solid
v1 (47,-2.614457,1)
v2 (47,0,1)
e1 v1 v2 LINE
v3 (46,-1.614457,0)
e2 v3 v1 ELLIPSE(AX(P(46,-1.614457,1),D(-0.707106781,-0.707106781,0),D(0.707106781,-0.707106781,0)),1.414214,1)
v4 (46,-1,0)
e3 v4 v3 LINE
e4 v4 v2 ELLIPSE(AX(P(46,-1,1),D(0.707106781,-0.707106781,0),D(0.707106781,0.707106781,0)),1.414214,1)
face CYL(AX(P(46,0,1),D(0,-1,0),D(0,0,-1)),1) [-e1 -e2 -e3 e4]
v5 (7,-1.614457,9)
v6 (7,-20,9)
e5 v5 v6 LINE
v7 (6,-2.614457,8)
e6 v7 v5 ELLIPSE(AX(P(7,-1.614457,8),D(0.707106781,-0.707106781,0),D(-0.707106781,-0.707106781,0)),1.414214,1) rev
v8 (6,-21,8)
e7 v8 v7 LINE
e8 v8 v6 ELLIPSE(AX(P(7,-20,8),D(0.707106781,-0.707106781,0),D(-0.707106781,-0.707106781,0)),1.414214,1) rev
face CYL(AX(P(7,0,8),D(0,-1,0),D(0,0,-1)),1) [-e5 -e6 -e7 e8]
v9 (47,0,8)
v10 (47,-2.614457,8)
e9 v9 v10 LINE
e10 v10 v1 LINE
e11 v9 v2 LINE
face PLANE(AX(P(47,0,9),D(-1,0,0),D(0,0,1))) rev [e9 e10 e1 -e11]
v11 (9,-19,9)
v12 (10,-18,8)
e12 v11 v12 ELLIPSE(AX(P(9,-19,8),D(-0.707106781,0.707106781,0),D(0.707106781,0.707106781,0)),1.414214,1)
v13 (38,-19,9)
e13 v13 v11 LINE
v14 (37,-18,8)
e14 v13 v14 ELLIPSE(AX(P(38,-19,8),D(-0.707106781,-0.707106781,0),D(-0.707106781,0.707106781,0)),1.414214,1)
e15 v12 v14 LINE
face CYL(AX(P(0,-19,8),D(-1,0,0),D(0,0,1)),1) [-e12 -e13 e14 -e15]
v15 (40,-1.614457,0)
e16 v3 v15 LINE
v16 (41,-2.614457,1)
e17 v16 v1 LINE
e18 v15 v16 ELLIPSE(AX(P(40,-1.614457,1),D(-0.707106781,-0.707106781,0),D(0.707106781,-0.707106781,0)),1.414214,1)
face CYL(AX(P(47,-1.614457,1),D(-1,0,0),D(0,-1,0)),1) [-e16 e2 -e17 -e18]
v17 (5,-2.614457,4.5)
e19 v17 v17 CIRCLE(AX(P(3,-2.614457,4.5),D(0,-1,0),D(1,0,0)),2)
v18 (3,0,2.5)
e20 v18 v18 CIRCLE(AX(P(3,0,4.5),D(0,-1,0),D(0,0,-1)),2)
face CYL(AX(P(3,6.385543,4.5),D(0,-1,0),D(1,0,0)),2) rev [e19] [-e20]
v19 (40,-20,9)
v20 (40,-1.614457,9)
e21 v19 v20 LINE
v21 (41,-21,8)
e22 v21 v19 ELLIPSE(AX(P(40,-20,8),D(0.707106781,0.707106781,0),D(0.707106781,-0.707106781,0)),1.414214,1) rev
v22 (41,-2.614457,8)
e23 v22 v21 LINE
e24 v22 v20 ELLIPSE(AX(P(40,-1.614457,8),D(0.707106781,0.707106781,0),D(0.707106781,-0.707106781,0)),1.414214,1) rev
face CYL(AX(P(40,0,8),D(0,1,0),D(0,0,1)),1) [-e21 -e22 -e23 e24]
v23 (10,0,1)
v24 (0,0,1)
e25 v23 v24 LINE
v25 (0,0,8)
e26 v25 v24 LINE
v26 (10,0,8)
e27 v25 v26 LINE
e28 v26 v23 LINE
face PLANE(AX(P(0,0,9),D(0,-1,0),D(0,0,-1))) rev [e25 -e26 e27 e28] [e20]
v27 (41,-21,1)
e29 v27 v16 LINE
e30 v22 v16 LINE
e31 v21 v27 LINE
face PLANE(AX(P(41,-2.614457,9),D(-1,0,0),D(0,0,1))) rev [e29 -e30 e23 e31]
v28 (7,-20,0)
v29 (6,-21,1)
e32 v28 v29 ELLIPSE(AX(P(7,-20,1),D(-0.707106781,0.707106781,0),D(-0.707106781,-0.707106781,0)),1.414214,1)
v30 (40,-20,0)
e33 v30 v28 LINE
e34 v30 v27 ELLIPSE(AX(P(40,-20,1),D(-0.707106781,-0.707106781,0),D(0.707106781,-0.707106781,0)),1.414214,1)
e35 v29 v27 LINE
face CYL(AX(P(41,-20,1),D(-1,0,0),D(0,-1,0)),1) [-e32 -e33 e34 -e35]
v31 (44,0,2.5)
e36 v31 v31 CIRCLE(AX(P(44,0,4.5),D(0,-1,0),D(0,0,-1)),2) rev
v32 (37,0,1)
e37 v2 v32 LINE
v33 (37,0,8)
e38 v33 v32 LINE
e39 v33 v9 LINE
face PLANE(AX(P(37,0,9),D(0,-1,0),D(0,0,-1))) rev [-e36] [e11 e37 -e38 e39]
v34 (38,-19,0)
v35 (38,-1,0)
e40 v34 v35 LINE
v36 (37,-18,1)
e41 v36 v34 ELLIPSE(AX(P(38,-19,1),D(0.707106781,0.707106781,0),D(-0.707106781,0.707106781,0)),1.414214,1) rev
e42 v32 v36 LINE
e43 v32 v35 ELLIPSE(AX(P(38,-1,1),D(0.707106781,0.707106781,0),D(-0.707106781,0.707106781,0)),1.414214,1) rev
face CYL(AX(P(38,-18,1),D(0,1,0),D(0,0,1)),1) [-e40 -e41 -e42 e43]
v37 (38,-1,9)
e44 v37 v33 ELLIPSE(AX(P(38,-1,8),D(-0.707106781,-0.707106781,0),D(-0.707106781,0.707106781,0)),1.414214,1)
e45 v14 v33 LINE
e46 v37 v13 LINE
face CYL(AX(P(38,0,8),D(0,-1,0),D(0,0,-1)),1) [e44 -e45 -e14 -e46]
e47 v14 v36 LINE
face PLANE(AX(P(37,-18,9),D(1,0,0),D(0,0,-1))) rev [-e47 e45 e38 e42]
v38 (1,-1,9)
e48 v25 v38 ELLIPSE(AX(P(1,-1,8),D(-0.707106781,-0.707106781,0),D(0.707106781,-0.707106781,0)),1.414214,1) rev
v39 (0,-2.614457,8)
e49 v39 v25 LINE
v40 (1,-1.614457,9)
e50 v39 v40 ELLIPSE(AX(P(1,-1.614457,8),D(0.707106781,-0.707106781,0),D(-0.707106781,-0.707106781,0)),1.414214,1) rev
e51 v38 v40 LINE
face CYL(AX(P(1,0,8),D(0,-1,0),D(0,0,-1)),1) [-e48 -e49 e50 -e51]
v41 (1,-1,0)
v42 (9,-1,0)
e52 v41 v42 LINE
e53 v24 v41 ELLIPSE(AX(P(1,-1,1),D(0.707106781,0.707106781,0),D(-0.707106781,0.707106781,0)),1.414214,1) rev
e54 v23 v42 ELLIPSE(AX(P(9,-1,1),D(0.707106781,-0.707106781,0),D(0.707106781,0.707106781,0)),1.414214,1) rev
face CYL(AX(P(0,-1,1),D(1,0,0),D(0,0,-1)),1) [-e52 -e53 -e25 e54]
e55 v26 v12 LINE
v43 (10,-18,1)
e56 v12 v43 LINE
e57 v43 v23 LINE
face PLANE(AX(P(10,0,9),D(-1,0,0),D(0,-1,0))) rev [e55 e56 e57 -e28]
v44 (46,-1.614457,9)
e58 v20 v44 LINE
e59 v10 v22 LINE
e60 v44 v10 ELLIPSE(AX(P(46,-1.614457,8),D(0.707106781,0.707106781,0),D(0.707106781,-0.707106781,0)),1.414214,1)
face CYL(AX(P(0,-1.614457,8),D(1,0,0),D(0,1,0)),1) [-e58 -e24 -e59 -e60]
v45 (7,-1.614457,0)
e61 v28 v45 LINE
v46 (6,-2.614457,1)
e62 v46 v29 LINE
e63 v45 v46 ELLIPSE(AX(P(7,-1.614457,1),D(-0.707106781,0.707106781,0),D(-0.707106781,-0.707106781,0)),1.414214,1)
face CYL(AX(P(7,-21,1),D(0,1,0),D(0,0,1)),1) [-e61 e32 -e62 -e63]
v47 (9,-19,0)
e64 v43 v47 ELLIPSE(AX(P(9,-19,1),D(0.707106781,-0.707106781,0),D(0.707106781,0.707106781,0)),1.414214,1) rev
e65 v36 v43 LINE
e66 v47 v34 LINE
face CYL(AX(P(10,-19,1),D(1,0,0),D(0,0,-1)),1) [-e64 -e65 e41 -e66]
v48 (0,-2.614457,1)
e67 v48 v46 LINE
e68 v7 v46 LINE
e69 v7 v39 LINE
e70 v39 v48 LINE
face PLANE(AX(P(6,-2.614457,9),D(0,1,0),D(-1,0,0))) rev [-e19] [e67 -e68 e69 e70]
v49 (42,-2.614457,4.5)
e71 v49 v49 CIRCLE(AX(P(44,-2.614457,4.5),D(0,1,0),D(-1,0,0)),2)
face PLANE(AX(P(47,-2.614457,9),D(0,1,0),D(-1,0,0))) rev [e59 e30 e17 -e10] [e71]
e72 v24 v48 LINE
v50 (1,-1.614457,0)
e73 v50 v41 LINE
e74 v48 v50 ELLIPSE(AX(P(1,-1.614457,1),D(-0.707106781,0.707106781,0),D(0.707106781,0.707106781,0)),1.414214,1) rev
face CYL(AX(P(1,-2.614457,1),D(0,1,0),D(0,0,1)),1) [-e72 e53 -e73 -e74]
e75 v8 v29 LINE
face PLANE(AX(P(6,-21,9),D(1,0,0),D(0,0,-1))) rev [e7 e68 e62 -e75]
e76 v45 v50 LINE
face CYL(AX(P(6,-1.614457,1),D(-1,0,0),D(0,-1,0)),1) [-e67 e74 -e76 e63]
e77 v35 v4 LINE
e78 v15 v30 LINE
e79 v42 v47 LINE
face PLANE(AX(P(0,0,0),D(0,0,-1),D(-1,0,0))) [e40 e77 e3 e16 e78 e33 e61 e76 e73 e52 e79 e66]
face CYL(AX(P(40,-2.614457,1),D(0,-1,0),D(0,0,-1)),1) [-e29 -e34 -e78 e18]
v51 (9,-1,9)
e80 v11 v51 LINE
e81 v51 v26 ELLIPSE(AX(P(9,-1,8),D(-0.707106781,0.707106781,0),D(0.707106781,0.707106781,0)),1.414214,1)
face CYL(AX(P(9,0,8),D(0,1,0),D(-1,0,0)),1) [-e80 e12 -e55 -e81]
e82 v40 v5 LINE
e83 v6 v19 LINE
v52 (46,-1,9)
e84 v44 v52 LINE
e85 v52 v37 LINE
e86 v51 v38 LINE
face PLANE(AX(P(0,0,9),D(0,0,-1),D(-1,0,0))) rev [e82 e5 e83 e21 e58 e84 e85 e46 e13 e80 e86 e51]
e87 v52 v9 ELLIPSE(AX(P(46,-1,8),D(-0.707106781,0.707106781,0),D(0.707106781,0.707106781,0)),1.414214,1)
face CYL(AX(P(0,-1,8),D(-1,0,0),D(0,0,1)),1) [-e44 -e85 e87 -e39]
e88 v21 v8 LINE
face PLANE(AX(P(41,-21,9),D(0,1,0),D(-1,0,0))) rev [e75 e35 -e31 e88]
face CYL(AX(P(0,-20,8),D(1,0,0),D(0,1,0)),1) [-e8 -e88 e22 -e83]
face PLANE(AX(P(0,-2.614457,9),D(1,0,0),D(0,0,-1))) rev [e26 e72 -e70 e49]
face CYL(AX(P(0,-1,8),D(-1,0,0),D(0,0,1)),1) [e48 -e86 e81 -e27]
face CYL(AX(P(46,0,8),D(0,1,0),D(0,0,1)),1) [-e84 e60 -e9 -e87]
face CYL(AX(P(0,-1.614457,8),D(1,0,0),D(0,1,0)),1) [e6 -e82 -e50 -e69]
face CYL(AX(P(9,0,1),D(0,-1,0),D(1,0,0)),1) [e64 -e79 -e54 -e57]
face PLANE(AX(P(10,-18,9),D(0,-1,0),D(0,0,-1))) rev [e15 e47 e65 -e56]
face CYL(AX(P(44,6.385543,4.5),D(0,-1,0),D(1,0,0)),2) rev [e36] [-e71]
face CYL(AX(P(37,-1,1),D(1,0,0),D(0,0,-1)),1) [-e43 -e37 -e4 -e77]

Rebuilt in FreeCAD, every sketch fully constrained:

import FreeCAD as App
import Part
import Sketcher
from FreeCAD import Vector
Q = App.Units.Quantity


def edges_at(feature, points):
    """Names of the edges that pass closest to the given points."""
    edges = feature.Shape.Edges
    near = lambda p: min(range(len(edges)), key=lambda i: edges[i].distToShape(Part.Vertex(*p))[0])
    return sorted({f"Edge{near(p) + 1}" for p in points})


def add_polygon(sketch, points):
    """Adds a closed chain of lines whose ends are joined by coincident constraints."""
    first, n = sketch.GeometryCount, len(points)
    for a, b in zip(points, points[1:] + points[:1]):
        sketch.addGeometry(Part.LineSegment(App.Vector(*a, 0), App.Vector(*b, 0)), False)
    for i in range(n):
        sketch.addConstraint(Sketcher.Constraint("Coincident", first + i, 2, first + (i + 1) % n, 1))

doc = App.newDocument("Part")
params = doc.addObject("Spreadsheet::Sheet", "Params")
for row, (alias, value) in enumerate([
    ("sketch1_width", "10 mm"),
    ("sketch1_width2", "6 mm"),
    ("sketch1_width3", "35 mm"),
    ("sketch1_height", "18 mm"),
    ("pad1_length", "9 mm"),
    ("sketch2_diameter", "4 mm"),
    ("pocket1_length", "9 mm"),
    ("fillet_radius", "1 mm"),
], start=1):
    params.set(f"A{row}", alias)
    params.set(f"B{row}", "=" + value)
    params.setAlias(f"B{row}", alias)

body = doc.addObject("PartDesign::Body", "Body")

# Sketch on XY plane
sketch1 = body.newObject("Sketcher::SketchObject", "Sketch")
sketch1.AttachmentSupport = (doc.getObject("XY_Plane"), [""])
sketch1.MapMode = "FlatFace"
add_polygon(sketch1, [(10, 0), (0, 0), (0, -2.6), (6, -2.6), (6, -21), (41, -21), (41, -2.6), (47, -2.6), (47, 0), (37, 0), (37, -18), (10, -18)])  # lines 0-11
sketch1.addConstraint(Sketcher.Constraint("Horizontal", 0))
sketch1.addConstraint(Sketcher.Constraint("Vertical", 1))
sketch1.addConstraint(Sketcher.Constraint("Horizontal", 2))
sketch1.addConstraint(Sketcher.Constraint("Vertical", 3))
sketch1.addConstraint(Sketcher.Constraint("Horizontal", 4))
sketch1.addConstraint(Sketcher.Constraint("Vertical", 5))
sketch1.addConstraint(Sketcher.Constraint("Horizontal", 6))
sketch1.addConstraint(Sketcher.Constraint("Vertical", 7))
sketch1.addConstraint(Sketcher.Constraint("Horizontal", 8))
sketch1.addConstraint(Sketcher.Constraint("Vertical", 9))
sketch1.addConstraint(Sketcher.Constraint("Horizontal", 10))
sketch1.addConstraint(Sketcher.Constraint("Vertical", 11))
sketch1.addConstraint(Sketcher.Constraint("Coincident", 0, 2, -1, 1))
sketch1.addConstraint(Sketcher.Constraint("PointOnObject", 7, 2, -1))
sketch1.addConstraint(Sketcher.Constraint("Horizontal", 2, 2, 5, 2))
sketch1.addConstraint(Sketcher.Constraint("Equal", 2, 6))
sketch1.addConstraint(Sketcher.Constraint("Equal", 0, 8))
sketch1.addConstraint(Sketcher.Constraint("DistanceX", 0, 2, 0, 1, Q("10 mm")))
sketch1.addConstraint(Sketcher.Constraint("DistanceX", 2, 1, 2, 2, Q("6 mm")))
sketch1.addConstraint(Sketcher.Constraint("DistanceX", 4, 1, 4, 2, Q("35 mm")))
sketch1.addConstraint(Sketcher.Constraint("DistanceY", 9, 2, 9, 1, Q("18 mm")))
sketch1.addConstraint(Sketcher.Constraint("DistanceY", 3, 2, -1, 1, Q("21 mm")))
sketch1.addConstraint(Sketcher.Constraint("DistanceY", 1, 2, 1, 1, Q("2.614457 mm")))
sketch1.setExpression("Constraints[29]", "Params.sketch1_width")
sketch1.setExpression("Constraints[30]", "Params.sketch1_width2")
sketch1.setExpression("Constraints[31]", "Params.sketch1_width3")
sketch1.setExpression("Constraints[32]", "Params.sketch1_height")
pad1 = body.newObject("PartDesign::Pad", "Pad")
pad1.Profile = sketch1
pad1.setExpression("Length", "Params.pad1_length")

# Sketch on XZ plane
sketch2 = body.newObject("Sketcher::SketchObject", "Sketch001")
sketch2.AttachmentSupport = (doc.getObject("XZ_Plane"), [""])
sketch2.MapMode = "FlatFace"
sketch2.AttachmentOffset = App.Placement(Vector(0, 0, 2.614457), App.Rotation())
sketch2.addGeometry(Part.Circle(Vector(3, 4.5, 0), Vector(0, 0, 1), 2), False)
sketch2.addConstraint(Sketcher.Constraint("Diameter", 0, Q("4 mm")))
sketch2.addConstraint(Sketcher.Constraint("DistanceX", -1, 1, 0, 3, Q("3 mm")))
sketch2.addConstraint(Sketcher.Constraint("DistanceY", -1, 1, 0, 3, Q("4.5 mm")))
sketch2.setExpression("Constraints[0]", "Params.sketch2_diameter")
pocket1 = body.newObject("PartDesign::Pocket", "Pocket")
pocket1.Profile = sketch2
pocket1.setExpression("Length", "Params.pocket1_length")
doc.recompute()

datumplane = body.newObject("PartDesign::Plane", "DatumPlane")
datumplane.AttachmentSupport = (doc.getObject("YZ_Plane"), [""])
datumplane.MapMode = "FlatFace"
datumplane.AttachmentOffset = App.Placement(Vector(0, 0, 23.5), App.Rotation())
mirrored = body.newObject("PartDesign::Mirrored", "Mirrored")
mirrored.Originals = [pocket1]
mirrored.MirrorPlane = (datumplane, [""])
body.Tip = mirrored
doc.recompute()

fillet = body.newObject("PartDesign::Fillet", "Fillet")
fillet.Base = (mirrored, edges_at(mirrored, [
    (5, 0, 0),
    (10, -9, 0),
    (6, -11.807, 9),
    (23.5, -18, 0),
    (37, -9, 0),
    (42, 0, 0),
    (47, -1.307, 0),
    (44, -2.614, 0),
    (41, -11.807, 0),
    (23.5, -21, 0),
    (6, -11.807, 0),
    (3, -2.614, 0),
    (0, -1.307, 0),
    (23.5, -21, 9),
    (41, -11.807, 9),
    (44, -2.614, 9),
    (47, -1.307, 9),
    (42, 0, 9),
    (37, -9, 9),
    (23.5, -18, 9),
    (10, -9, 9),
    (5, 0, 9),
    (0, -1.307, 9),
    (3, -2.614, 9),
]))
fillet.setExpression("Radius", "Params.fillet_radius")

doc.recompute()
